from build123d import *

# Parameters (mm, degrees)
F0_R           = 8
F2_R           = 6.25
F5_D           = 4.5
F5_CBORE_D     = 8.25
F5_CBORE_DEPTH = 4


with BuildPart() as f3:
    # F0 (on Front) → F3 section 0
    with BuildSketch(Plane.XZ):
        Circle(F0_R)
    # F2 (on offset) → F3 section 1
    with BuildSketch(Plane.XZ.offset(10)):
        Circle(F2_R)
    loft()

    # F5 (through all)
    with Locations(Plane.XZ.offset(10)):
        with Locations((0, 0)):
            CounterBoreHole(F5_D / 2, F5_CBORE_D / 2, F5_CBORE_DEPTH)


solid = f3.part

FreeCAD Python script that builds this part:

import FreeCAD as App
import Part
import Sketcher
Q = App.Units.Quantity

doc = App.newDocument("Part")
body = doc.addObject("PartDesign::Body", "Body")

sketch1 = body.newObject("Sketcher::SketchObject", "Sketch")
sketch1.AttachmentSupport = (doc.getObject("XZ_Plane"), [""])
sketch1.MapMode = "FlatFace"
sketch1.addGeometry(Part.Circle(App.Vector(0, 0, 0), App.Vector(0, 0, 1), 8), False)
sketch1.addConstraint([
    Sketcher.Constraint("Coincident", 0, 3, -1, 1),
    Sketcher.Constraint("Diameter", 0, Q("16 mm")),
])

sketch2 = body.newObject("Sketcher::SketchObject", "Sketch001")
sketch2.AttachmentSupport = (doc.getObject("XZ_Plane"), [""])
sketch2.MapMode = "FlatFace"
sketch2.AttachmentOffset = App.Placement(App.Vector(0, 0, 10), App.Rotation())
sketch2.addGeometry(Part.Circle(App.Vector(0, 0, 0), App.Vector(0, 0, 1), 6.25), False)
sketch2.addConstraint([
    Sketcher.Constraint("Coincident", 0, 3, -1, 1),
    Sketcher.Constraint("Diameter", 0, Q("12.5 mm")),
])

additiveloft = body.newObject("PartDesign::AdditiveLoft", "AdditiveLoft")
additiveloft.Profile = sketch1
additiveloft.Sections = [sketch2]

sketch3 = body.newObject("Sketcher::SketchObject", "Sketch002")
sketch3.AttachmentSupport = (doc.getObject("XZ_Plane"), [""])
sketch3.MapMode = "FlatFace"
sketch3.AttachmentOffset = App.Placement(App.Vector(0, 0, 10), App.Rotation())
sketch3.addGeometry(Part.Circle(App.Vector(0, 0, 0), App.Vector(0, 0, 1), 2.25), False)
sketch3.addConstraint([
    Sketcher.Constraint("Coincident", 0, 3, -1, 1),
    Sketcher.Constraint("Diameter", 0, Q("4.5 mm")),
])
doc.recompute()
hole = body.newObject("PartDesign::Hole", "Hole")
hole.Profile = sketch3
hole.ThreadType = "None"
hole.Diameter = 4.5
hole.DepthType = "ThroughAll"
hole.HoleCutType = "Counterbore"
hole.HoleCutDiameter = 8.25
hole.HoleCutDepth = 4

doc.recompute()
